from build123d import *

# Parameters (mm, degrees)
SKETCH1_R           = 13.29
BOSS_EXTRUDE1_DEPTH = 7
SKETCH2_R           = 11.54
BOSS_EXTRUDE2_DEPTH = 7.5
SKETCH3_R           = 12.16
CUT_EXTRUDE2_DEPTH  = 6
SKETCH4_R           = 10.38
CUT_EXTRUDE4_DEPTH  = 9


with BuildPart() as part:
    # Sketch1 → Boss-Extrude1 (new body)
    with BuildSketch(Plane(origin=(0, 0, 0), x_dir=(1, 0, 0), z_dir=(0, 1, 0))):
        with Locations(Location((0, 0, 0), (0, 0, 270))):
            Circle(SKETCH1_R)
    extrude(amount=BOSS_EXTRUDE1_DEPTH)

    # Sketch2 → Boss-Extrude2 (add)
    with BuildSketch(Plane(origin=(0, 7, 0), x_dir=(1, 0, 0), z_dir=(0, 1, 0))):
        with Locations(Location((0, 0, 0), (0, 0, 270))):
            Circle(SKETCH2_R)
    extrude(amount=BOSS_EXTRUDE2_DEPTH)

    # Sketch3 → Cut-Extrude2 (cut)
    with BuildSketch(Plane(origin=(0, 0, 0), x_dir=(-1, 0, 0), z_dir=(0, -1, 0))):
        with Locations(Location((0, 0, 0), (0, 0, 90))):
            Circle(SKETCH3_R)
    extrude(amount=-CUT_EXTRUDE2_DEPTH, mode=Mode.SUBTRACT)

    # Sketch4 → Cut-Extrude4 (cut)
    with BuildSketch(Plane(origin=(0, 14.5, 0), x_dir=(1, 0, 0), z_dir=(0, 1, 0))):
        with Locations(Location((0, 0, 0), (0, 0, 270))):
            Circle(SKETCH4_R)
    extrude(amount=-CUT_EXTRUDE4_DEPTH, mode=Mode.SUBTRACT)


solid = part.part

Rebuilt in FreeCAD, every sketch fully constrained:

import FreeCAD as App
import Part
import Sketcher

V = App.Vector

doc = App.newDocument("Part")
body = doc.addObject("PartDesign::Body", "Body")

sketch1 = doc.addObject("Sketcher::SketchObject", "Sketch")
body.addObject(sketch1)
sketch1.AttachmentSupport = (doc.XZ_Plane, [""])
sketch1.MapMode = "FlatFace"
sketch1.addGeometry(Part.Circle(V(0, 0, 0), V(0, 0, 1), 13), False)
sketch1.addConstraint([
    Sketcher.Constraint("Coincident", 0, 3, -1, 1),
    Sketcher.Constraint("Diameter", 0, 26.58),
])
pad1 = doc.addObject("PartDesign::Pad", "Pad")
body.addObject(pad1)
pad1.Profile = sketch1
pad1.Length = 7
pad1.Reversed = True

sketch2 = doc.addObject("Sketcher::SketchObject", "Sketch001")
body.addObject(sketch2)
sketch2.AttachmentSupport = (doc.XZ_Plane, [""])
sketch2.MapMode = "FlatFace"
sketch2.AttachmentOffset = App.Placement(V(0, 0, -7), App.Rotation())
sketch2.addGeometry(Part.Circle(V(0, 0, 0), V(0, 0, 1), 12), False)
sketch2.addConstraint([
    Sketcher.Constraint("Coincident", 0, 3, -1, 1),
    Sketcher.Constraint("Diameter", 0, 23.08),
])
pad2 = doc.addObject("PartDesign::Pad", "Pad001")
body.addObject(pad2)
pad2.Profile = sketch2
pad2.Length = 7.5
pad2.Reversed = True

sketch3 = doc.addObject("Sketcher::SketchObject", "Sketch002")
body.addObject(sketch3)
sketch3.AttachmentSupport = (doc.XZ_Plane, [""])
sketch3.MapMode = "FlatFace"
sketch3.addGeometry(Part.Circle(V(0, 0, 0), V(0, 0, 1), 12), False)
sketch3.addConstraint([
    Sketcher.Constraint("Coincident", 0, 3, -1, 1),
    Sketcher.Constraint("Diameter", 0, 24.32),
])
pocket1 = doc.addObject("PartDesign::Pocket", "Pocket")
body.addObject(pocket1)
pocket1.Profile = sketch3
pocket1.Length = 6

sketch4 = doc.addObject("Sketcher::SketchObject", "Sketch003")
body.addObject(sketch4)
sketch4.AttachmentSupport = (doc.XZ_Plane, [""])
sketch4.MapMode = "FlatFace"
sketch4.AttachmentOffset = App.Placement(V(0, 0, -14.5), App.Rotation())
sketch4.addGeometry(Part.Circle(V(0, 0, 0), V(0, 0, 1), 10), False)
sketch4.addConstraint([
    Sketcher.Constraint("Coincident", 0, 3, -1, 1),
    Sketcher.Constraint("Diameter", 0, 20.76),
])
pocket2 = doc.addObject("PartDesign::Pocket", "Pocket001")
body.addObject(pocket2)
pocket2.Profile = sketch4
pocket2.Length = 9
pocket2.Reversed = True

doc.recompute()
